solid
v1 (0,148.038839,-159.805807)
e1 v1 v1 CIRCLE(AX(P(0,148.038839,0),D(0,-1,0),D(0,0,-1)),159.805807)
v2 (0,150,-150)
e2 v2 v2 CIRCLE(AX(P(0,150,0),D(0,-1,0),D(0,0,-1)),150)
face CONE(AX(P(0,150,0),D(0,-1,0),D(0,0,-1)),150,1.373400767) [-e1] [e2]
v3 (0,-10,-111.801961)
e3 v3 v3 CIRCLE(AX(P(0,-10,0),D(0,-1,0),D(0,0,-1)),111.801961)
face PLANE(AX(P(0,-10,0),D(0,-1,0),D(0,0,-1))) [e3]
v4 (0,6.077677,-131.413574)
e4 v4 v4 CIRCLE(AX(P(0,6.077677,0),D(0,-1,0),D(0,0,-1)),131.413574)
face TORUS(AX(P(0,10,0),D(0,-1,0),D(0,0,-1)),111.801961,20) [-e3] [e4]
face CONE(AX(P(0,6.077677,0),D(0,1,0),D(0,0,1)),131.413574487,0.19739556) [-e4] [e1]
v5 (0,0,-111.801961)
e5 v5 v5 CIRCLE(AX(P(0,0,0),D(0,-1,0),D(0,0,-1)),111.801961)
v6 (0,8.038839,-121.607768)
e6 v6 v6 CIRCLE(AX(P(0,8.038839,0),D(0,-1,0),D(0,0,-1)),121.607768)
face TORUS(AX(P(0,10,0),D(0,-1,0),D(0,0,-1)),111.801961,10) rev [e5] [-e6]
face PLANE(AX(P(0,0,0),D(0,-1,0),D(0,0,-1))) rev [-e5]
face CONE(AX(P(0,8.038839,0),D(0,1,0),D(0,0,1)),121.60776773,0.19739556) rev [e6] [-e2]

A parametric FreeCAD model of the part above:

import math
import FreeCAD as App
import Part
import Sketcher

doc = App.newDocument("Part")
body = doc.addObject("PartDesign::Body", "Body")

# Sketch on YZ plane
sketch1 = body.newObject("Sketcher::SketchObject", "Sketch")
sketch1.AttachmentSupport = (doc.getObject("YZ_Plane"), [""])
sketch1.MapMode = "FlatFace"
sketch1.addGeometry([
    Part.LineSegment(App.Vector(0, -112, 0), App.Vector(0, 0, 0)),  # 0
    Part.LineSegment(App.Vector(0, 0, 0), App.Vector(-10, 0, 0)),  # 1
    Part.LineSegment(App.Vector(-10, 0, 0), App.Vector(-10, -112, 0)),  # 2
    Part.ArcOfCircle(Part.Circle(App.Vector(10, -112, 0), App.Vector(0, 0, 1), 20), math.radians(180), math.radians(259)),  # 3
    Part.LineSegment(App.Vector(6, -131, 0), App.Vector(148, -160, 0)),  # 4
    Part.LineSegment(App.Vector(148, -160, 0), App.Vector(150, -150, 0)),  # 5
    Part.LineSegment(App.Vector(150, -150, 0), App.Vector(8, -122, 0)),  # 6
    Part.ArcOfCircle(Part.Circle(App.Vector(10, -112, 0), App.Vector(0, 0, 1), 10), math.radians(-180), math.radians(-101)),  # 7
], False)
sketch1.addConstraint([
    Sketcher.Constraint("Coincident", 0, 2, 1, 1),
    Sketcher.Constraint("Coincident", 1, 2, 2, 1),
    Sketcher.Constraint("Tangent", 2, 2, 3, 1),
    Sketcher.Constraint("Tangent", 3, 2, 4, 1),
    Sketcher.Constraint("Coincident", 4, 2, 5, 1),
    Sketcher.Constraint("Coincident", 5, 2, 6, 1),
    Sketcher.Constraint("Tangent", 6, 2, 7, 2),
    Sketcher.Constraint("Tangent", 7, 1, 0, 1),
    Sketcher.Constraint("Vertical", 0),
    Sketcher.Constraint("Horizontal", 1),
    Sketcher.Constraint("Vertical", 2),
    Sketcher.Constraint("Coincident", 0, 2, -1, 1),
    Sketcher.Constraint("Coincident", 7, 3, 3, 3),
    Sketcher.Constraint("Perpendicular", 4, 5),
    Sketcher.Constraint("Perpendicular", 5, 6),
    Sketcher.Constraint("Radius", 3, 20.0),
    Sketcher.Constraint("Radius", 7, 10.0),
    Sketcher.Constraint("DistanceX", -1, 1, 5, 2, 150.0),
    Sketcher.Constraint("DistanceY", 5, 2, -1, 1, 150.0),
    Sketcher.Constraint("DistanceY", 0, 1, 0, 2, 111.801961),
])
revolution = body.newObject("PartDesign::Revolution", "Revolution")
revolution.Profile = sketch1
revolution.ReferenceAxis = (sketch1, ["H_Axis"])
revolution.Angle = 360

doc.recompute()
